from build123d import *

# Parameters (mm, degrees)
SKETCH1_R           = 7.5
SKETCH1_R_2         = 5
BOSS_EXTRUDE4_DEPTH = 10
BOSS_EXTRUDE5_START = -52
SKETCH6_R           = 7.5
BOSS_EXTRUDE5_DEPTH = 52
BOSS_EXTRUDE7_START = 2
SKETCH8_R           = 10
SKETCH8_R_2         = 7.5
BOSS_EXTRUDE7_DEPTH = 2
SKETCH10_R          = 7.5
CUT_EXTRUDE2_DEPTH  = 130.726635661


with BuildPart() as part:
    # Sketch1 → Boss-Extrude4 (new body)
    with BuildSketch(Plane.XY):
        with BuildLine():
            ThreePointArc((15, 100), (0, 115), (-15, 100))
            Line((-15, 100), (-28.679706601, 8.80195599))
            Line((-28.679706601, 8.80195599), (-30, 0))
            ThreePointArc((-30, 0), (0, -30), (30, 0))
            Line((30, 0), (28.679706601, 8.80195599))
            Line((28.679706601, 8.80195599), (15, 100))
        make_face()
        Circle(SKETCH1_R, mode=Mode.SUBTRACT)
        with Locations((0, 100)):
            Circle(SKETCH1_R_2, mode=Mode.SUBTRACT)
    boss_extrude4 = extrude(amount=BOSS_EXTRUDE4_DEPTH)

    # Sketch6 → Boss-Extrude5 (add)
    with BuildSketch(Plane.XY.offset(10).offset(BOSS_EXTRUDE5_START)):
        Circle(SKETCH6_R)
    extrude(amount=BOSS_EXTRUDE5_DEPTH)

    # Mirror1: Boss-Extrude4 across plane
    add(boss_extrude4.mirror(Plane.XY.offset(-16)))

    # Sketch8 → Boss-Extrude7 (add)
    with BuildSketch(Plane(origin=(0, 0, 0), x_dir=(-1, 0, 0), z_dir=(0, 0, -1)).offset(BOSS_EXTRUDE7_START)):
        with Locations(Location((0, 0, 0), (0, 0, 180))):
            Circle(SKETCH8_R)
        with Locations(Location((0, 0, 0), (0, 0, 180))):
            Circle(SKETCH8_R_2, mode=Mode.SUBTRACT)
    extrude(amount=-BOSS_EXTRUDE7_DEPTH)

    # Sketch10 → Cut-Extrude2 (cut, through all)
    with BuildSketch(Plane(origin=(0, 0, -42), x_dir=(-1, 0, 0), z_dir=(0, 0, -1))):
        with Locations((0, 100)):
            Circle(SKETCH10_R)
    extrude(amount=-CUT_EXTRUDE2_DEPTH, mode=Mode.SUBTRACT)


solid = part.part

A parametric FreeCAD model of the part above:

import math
import FreeCAD as App
import Part
import Sketcher
from FreeCAD import Vector
Q = App.Units.Quantity

doc = App.newDocument("Part")
body = doc.addObject("PartDesign::Body", "Body")

sketch1 = body.newObject("Sketcher::SketchObject", "Sketch")
sketch1.AttachmentSupport = (doc.getObject("XY_Plane"), [""])
sketch1.MapMode = "FlatFace"
sketch1.addGeometry([
    Part.ArcOfCircle(Part.Circle(Vector(0, 100, 0), Vector(0, 0, 1), 15), math.radians(0), math.radians(180)),
    Part.LineSegment(Vector(-15, 100, 0), Vector(-29, 9, 0)),
    Part.LineSegment(Vector(-29, 9, 0), Vector(-30, 0, 0)),
    Part.ArcOfCircle(Part.Circle(Vector(0, 0, 0), Vector(0, 0, 1), 30), math.radians(180), math.radians(360)),
    Part.LineSegment(Vector(30, 0, 0), Vector(29, 9, 0)),
    Part.LineSegment(Vector(29, 9, 0), Vector(15, 100, 0)),
    Part.Circle(Vector(0, 0, 0), Vector(0, 0, 1), 8),
    Part.Circle(Vector(0, 100, 0), Vector(0, 0, 1), 5),
], False)
sketch1.addConstraint([
    Sketcher.Constraint("Coincident", 0, 2, 1, 1),
    Sketcher.Constraint("Coincident", 1, 2, 2, 1),
    Sketcher.Constraint("Coincident", 2, 2, 3, 1),
    Sketcher.Constraint("Coincident", 3, 2, 4, 1),
    Sketcher.Constraint("Coincident", 4, 2, 5, 1),
    Sketcher.Constraint("Coincident", 5, 2, 0, 1),
    Sketcher.Constraint("Coincident", 3, 3, -1, 1),
    Sketcher.Constraint("Coincident", 6, 3, -1, 1),
    Sketcher.Constraint("Coincident", 7, 3, 0, 3),
    Sketcher.Constraint("Symmetric", 1, 2, 4, 2, -2),
    Sketcher.Constraint("Symmetric", 0, 2, 5, 2, -2),
    Sketcher.Constraint("PointOnObject", 2, 2, -1),
    Sketcher.Constraint("PointOnObject", 3, 2, -1),
    Sketcher.Constraint("Parallel", 1, 2),
    Sketcher.Constraint("Horizontal", 7, 3, 0, 2),
    Sketcher.Constraint("Diameter", 6, Q("15 mm")),
    Sketcher.Constraint("Diameter", 7, Q("10 mm")),
    Sketcher.Constraint("Radius", 0, Q("15 mm")),
    Sketcher.Constraint("Radius", 3, Q("30 mm")),
    Sketcher.Constraint("DistanceY", -1, 1, 0, 3, Q("100 mm")),
    Sketcher.Constraint("Distance", 1, Q("92.218315 mm")),
])
pad1 = body.newObject("PartDesign::Pad", "Pad")
pad1.Profile = sketch1
pad1.Length = 10

sketch2 = body.newObject("Sketcher::SketchObject", "Sketch001")
sketch2.AttachmentSupport = (doc.getObject("XY_Plane"), [""])
sketch2.MapMode = "FlatFace"
sketch2.AttachmentOffset = App.Placement(Vector(0, 0, -42), App.Rotation())
sketch2.addGeometry(Part.Circle(Vector(0, 0, 0), Vector(0, 0, 1), 8), False)
sketch2.addConstraint([
    Sketcher.Constraint("Coincident", 0, 3, -1, 1),
    Sketcher.Constraint("Diameter", 0, Q("15 mm")),
])
pad2 = body.newObject("PartDesign::Pad", "Pad001")
pad2.Profile = sketch2
pad2.Length = 52
doc.recompute()

datumplane = body.newObject("PartDesign::Plane", "DatumPlane")
datumplane.AttachmentSupport = (doc.getObject("XY_Plane"), [""])
datumplane.MapMode = "FlatFace"
datumplane.AttachmentOffset = App.Placement(Vector(0, 0, -16), App.Rotation())
mirrored = body.newObject("PartDesign::Mirrored", "Mirrored")
mirrored.Originals = [pad1]
mirrored.MirrorPlane = (datumplane, [""])
body.Tip = mirrored

sketch3 = body.newObject("Sketcher::SketchObject", "Sketch002")
sketch3.AttachmentSupport = (doc.getObject("XY_Plane"), [""])
sketch3.MapMode = "FlatFace"
sketch3.AttachmentOffset = App.Placement(Vector(0, 0, -2), App.Rotation())
sketch3.addGeometry([
    Part.Circle(Vector(0, 0, 0), Vector(0, 0, 1), 10),
    Part.Circle(Vector(0, 0, 0), Vector(0, 0, 1), 8),
], False)
sketch3.addConstraint([
    Sketcher.Constraint("Coincident", 0, 3, -1, 1),
    Sketcher.Constraint("Coincident", 1, 3, -1, 1),
    Sketcher.Constraint("Diameter", 0, Q("20 mm")),
    Sketcher.Constraint("Diameter", 1, Q("15 mm")),
])
pad3 = body.newObject("PartDesign::Pad", "Pad002")
pad3.Profile = sketch3
pad3.Length = 2

sketch4 = body.newObject("Sketcher::SketchObject", "Sketch003")
sketch4.AttachmentSupport = (doc.getObject("XY_Plane"), [""])
sketch4.MapMode = "FlatFace"
sketch4.AttachmentOffset = App.Placement(Vector(0, 0, -42), App.Rotation())
sketch4.addGeometry(Part.Circle(Vector(0, 100, 0), Vector(0, 0, 1), 8), False)
sketch4.addConstraint([
    Sketcher.Constraint("PointOnObject", 0, 3, -2),
    Sketcher.Constraint("Diameter", 0, Q("15 mm")),
    Sketcher.Constraint("DistanceY", -1, 1, 0, 3, Q("100 mm")),
])
pocket1 = body.newObject("PartDesign::Pocket", "Pocket")
pocket1.Profile = sketch4
pocket1.Type = "ThroughAll"
pocket1.Reversed = True

doc.recompute()
